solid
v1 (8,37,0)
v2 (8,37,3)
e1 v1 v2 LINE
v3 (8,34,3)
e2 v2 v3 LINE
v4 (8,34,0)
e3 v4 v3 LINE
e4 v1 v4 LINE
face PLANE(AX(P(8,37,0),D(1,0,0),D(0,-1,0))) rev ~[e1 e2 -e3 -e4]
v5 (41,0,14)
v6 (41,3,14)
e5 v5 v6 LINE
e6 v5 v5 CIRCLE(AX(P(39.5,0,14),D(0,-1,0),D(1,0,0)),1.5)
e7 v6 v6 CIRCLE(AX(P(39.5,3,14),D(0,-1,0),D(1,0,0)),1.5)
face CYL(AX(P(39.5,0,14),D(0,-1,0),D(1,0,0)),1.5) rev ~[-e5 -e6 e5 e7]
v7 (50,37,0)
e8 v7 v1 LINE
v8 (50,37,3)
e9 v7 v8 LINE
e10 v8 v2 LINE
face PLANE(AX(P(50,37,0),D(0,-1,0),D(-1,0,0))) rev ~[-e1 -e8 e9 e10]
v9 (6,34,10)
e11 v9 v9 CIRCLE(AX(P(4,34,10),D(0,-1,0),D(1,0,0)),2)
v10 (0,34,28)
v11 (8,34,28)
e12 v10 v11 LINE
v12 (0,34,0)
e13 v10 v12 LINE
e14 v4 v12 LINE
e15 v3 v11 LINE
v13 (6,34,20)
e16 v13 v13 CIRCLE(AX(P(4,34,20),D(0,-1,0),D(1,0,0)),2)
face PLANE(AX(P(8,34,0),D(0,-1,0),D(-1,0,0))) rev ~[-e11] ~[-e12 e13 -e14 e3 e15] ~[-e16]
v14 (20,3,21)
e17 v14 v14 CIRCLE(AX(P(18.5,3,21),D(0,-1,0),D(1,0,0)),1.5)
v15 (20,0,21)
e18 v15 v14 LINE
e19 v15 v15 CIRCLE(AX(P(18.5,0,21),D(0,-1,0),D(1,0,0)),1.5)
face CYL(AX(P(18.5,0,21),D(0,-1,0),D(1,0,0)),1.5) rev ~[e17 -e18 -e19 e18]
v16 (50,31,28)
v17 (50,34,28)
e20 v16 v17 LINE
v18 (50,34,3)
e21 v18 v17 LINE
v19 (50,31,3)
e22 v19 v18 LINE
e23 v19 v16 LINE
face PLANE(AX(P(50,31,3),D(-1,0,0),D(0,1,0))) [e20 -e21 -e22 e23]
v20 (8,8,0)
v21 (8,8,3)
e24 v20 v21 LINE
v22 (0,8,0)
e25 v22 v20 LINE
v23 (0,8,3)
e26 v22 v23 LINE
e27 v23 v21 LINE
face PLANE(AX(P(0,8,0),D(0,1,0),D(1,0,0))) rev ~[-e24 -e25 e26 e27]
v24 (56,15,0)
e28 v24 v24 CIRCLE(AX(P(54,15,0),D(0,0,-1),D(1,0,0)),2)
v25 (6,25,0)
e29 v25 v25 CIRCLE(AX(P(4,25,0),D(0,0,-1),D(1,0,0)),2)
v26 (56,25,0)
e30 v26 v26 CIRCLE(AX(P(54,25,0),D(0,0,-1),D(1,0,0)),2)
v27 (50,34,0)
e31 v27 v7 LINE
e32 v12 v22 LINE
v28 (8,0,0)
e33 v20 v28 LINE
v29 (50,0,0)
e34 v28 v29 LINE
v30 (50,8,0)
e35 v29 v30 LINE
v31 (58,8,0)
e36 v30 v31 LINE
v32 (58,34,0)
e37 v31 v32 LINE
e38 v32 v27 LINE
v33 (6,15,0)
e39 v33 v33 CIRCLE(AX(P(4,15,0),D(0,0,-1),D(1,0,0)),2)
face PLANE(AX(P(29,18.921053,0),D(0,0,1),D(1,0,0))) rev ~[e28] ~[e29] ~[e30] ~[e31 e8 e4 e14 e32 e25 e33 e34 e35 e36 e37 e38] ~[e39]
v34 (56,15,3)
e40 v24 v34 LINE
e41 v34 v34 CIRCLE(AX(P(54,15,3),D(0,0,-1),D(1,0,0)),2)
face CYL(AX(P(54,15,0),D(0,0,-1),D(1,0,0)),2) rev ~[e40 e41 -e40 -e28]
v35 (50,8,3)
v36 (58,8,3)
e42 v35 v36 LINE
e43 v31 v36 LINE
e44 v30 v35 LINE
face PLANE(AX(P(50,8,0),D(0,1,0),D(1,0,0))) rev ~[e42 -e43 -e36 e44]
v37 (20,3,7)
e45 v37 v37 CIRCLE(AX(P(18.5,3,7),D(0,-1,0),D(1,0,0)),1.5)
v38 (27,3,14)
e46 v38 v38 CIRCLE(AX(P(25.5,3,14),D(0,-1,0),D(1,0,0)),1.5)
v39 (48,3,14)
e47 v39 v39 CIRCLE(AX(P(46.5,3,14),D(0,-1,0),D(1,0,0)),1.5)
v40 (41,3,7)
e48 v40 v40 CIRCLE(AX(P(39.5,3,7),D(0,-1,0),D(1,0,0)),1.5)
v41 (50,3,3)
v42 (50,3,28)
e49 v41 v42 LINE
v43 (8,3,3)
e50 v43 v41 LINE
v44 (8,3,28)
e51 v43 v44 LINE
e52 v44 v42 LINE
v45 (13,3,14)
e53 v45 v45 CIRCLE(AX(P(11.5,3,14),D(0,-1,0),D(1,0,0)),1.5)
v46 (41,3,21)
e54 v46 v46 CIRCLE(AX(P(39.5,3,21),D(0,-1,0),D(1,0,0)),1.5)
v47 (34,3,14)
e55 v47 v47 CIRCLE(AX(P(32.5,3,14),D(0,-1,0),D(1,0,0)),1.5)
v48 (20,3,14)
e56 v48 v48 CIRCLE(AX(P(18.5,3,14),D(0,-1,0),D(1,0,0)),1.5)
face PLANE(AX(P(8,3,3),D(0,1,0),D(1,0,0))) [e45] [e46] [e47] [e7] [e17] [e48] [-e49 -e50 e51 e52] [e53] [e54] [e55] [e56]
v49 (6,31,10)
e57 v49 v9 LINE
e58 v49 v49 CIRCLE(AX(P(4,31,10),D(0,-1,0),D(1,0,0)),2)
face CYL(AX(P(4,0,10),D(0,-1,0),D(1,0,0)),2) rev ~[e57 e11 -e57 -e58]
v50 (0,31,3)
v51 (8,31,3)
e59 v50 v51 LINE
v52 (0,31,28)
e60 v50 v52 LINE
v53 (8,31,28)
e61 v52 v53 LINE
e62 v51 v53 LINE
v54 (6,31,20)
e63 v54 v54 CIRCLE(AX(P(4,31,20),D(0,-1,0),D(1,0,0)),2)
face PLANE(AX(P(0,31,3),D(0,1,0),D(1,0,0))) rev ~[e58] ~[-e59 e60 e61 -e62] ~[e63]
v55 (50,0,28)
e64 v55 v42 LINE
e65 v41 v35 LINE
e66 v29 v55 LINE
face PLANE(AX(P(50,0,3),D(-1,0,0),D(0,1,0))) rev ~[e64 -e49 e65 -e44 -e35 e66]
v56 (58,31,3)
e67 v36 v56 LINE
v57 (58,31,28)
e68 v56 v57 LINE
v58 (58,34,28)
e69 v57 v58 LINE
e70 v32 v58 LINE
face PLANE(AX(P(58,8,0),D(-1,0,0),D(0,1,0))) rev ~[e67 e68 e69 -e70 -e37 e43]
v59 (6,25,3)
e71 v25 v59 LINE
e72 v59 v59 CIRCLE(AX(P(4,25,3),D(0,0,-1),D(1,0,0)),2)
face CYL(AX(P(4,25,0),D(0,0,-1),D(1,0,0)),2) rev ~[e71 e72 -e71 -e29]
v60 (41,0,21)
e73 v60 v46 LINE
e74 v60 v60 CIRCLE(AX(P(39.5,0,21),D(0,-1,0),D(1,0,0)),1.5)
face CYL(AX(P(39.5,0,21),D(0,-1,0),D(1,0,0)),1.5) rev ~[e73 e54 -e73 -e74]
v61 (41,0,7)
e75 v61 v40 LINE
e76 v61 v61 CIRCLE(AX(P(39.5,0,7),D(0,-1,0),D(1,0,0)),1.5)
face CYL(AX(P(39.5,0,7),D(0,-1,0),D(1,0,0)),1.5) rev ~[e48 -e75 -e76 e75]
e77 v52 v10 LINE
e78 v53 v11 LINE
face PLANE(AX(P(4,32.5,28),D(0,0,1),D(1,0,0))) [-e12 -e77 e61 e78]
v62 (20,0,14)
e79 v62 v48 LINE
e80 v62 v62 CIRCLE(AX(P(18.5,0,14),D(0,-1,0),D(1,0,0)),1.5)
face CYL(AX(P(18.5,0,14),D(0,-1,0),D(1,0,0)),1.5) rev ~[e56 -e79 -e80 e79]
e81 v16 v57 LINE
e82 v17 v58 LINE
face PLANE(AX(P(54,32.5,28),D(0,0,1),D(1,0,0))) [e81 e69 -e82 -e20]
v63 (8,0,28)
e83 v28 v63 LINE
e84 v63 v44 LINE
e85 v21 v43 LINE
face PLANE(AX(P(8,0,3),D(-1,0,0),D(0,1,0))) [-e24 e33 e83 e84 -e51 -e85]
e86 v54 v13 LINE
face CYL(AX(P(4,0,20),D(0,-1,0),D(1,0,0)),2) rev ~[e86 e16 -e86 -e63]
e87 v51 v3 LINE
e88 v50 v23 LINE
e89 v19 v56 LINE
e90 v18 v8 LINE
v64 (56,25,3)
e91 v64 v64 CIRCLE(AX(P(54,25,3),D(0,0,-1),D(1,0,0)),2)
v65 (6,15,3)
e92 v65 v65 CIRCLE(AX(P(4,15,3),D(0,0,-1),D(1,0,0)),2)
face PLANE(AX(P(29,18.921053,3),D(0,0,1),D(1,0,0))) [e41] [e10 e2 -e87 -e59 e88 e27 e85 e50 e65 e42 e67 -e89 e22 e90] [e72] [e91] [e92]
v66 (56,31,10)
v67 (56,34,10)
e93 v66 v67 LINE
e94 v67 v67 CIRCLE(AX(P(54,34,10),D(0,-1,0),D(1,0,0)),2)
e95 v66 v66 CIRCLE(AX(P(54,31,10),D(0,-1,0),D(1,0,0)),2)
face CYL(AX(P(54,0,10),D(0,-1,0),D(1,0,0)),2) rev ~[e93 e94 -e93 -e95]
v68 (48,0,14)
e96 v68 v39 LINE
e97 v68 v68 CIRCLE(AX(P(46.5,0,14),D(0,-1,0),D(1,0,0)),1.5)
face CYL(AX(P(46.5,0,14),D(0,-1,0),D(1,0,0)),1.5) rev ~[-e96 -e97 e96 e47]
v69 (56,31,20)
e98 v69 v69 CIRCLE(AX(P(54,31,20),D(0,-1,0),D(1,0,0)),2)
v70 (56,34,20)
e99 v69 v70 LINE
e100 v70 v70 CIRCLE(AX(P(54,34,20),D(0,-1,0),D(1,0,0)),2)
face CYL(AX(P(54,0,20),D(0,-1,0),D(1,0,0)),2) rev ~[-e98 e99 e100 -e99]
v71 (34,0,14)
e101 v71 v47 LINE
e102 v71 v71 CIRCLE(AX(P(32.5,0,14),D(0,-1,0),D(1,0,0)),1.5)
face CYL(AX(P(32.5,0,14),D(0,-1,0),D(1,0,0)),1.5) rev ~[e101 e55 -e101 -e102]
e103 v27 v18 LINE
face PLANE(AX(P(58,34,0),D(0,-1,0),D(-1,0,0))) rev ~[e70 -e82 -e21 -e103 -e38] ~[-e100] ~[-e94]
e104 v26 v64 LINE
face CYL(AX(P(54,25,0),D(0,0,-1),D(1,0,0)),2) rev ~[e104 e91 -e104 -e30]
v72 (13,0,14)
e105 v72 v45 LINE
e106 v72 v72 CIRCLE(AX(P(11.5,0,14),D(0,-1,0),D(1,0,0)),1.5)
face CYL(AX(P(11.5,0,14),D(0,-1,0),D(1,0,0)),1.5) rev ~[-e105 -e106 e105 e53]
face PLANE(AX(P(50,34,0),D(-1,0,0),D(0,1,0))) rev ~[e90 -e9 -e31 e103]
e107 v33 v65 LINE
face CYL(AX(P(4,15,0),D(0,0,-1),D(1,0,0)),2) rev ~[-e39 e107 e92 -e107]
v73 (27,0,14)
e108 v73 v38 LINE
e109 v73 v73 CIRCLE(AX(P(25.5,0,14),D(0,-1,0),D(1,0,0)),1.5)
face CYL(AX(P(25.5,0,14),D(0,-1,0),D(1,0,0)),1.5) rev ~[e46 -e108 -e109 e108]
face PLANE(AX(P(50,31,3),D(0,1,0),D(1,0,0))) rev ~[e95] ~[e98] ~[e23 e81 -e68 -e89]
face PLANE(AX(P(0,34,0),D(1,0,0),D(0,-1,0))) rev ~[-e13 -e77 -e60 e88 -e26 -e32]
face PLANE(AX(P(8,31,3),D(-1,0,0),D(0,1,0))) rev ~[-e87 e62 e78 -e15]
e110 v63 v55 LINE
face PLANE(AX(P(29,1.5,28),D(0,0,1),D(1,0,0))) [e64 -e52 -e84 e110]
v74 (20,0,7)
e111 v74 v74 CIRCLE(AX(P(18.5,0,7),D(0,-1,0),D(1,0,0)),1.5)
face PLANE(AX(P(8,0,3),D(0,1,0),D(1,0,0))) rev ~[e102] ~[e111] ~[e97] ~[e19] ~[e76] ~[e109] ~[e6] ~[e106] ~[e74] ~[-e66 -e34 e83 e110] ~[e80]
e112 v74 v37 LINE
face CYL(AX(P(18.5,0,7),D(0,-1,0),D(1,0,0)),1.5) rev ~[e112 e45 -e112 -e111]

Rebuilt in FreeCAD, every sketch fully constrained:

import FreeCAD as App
import Part
import Sketcher

V = App.Vector


def add_polygon(sketch, points):
    """Adds a closed chain of lines whose ends are joined by coincident constraints."""
    first, n = sketch.GeometryCount, len(points)
    for a, b in zip(points, points[1:] + points[:1]):
        sketch.addGeometry(Part.LineSegment(App.Vector(*a, 0), App.Vector(*b, 0)), False)
    for i in range(n):
        sketch.addConstraint(Sketcher.Constraint("Coincident", first + i, 2, first + (i + 1) % n, 1))

doc = App.newDocument("Part")
body = doc.addObject("PartDesign::Body", "Body")

sketch1 = doc.addObject("Sketcher::SketchObject", "Sketch")
body.addObject(sketch1)
sketch1.AttachmentSupport = (doc.XY_Plane, [""])
sketch1.MapMode = "FlatFace"
add_polygon(sketch1, [(8, 8), (8, 0), (50, 0), (50, 8), (58, 8), (58, 34), (50, 34), (50, 37), (8, 37), (8, 34), (0, 34), (0, 8)])
sketch1.addConstraint([
    Sketcher.Constraint("Vertical", 0),
    Sketcher.Constraint("Horizontal", 1),
    Sketcher.Constraint("Vertical", 2),
    Sketcher.Constraint("Horizontal", 3),
    Sketcher.Constraint("Vertical", 4),
    Sketcher.Constraint("Horizontal", 5),
    Sketcher.Constraint("Vertical", 6),
    Sketcher.Constraint("Horizontal", 7),
    Sketcher.Constraint("Vertical", 8),
    Sketcher.Constraint("Horizontal", 9),
    Sketcher.Constraint("Vertical", 10),
    Sketcher.Constraint("Horizontal", 11),
    Sketcher.Constraint("PointOnObject", 0, 2, -1),
    Sketcher.Constraint("PointOnObject", 9, 2, -2),
    Sketcher.Constraint("Horizontal", 5, 2, 8, 2),
    Sketcher.Constraint("Horizontal", 3, 2, 10, 2),
    Sketcher.Constraint("Vertical", 2, 2, 5, 2),
    Sketcher.Constraint("Vertical", 0, 2, 7, 2),
    Sketcher.Constraint("Equal", 5, 9),
    Sketcher.Constraint("Equal", 11, 0),
    Sketcher.Constraint("DistanceX", 1, 1, 1, 2, 42.0),
    Sketcher.Constraint("DistanceX", 3, 1, 3, 2, 8.0),
    Sketcher.Constraint("DistanceY", 4, 1, 4, 2, 26.0),
    Sketcher.Constraint("DistanceY", 6, 1, 6, 2, 3.0),
])
pad1 = doc.addObject("PartDesign::Pad", "Pad")
body.addObject(pad1)
pad1.Profile = sketch1
pad1.Length = 3

sketch2 = doc.addObject("Sketcher::SketchObject", "Sketch001")
body.addObject(sketch2)
sketch2.AttachmentSupport = (doc.XY_Plane, [""])
sketch2.MapMode = "FlatFace"
sketch2.AttachmentOffset = App.Placement(V(0, 0, 3), App.Rotation())
add_polygon(sketch2, [(8, 3), (8, 0), (50, 0), (50, 3)])
add_polygon(sketch2, [(0, 34), (0, 31), (8, 31), (8, 34)])
add_polygon(sketch2, [(50, 34), (50, 31), (58, 31), (58, 34)])
sketch2.addConstraint([
    Sketcher.Constraint("Vertical", 0),
    Sketcher.Constraint("Horizontal", 1),
    Sketcher.Constraint("Vertical", 2),
    Sketcher.Constraint("Horizontal", 3),
    Sketcher.Constraint("Vertical", 4),
    Sketcher.Constraint("Horizontal", 5),
    Sketcher.Constraint("Vertical", 6),
    Sketcher.Constraint("Horizontal", 7),
    Sketcher.Constraint("Vertical", 8),
    Sketcher.Constraint("Horizontal", 9),
    Sketcher.Constraint("Vertical", 10),
    Sketcher.Constraint("Horizontal", 11),
    Sketcher.Constraint("PointOnObject", 0, 2, -1),
    Sketcher.Constraint("PointOnObject", 4, 2, -2),
    Sketcher.Constraint("Horizontal", 5, 2, 8, 2),
    Sketcher.Constraint("Horizontal", 7, 2, 10, 2),
    Sketcher.Constraint("Vertical", 3, 2, 5, 2),
    Sketcher.Constraint("Vertical", 2, 2, 8, 2),
    Sketcher.Constraint("Equal", 7, 9),
    Sketcher.Constraint("Equal", 2, 4),
    Sketcher.Constraint("DistanceX", 1, 1, 1, 2, 42.0),
    Sketcher.Constraint("DistanceX", 5, 1, 5, 2, 8.0),
    Sketcher.Constraint("DistanceY", 0, 2, 0, 1, 3.0),
    Sketcher.Constraint("DistanceY", -1, 1, 4, 2, 31.0),
])
pad2 = doc.addObject("PartDesign::Pad", "Pad001")
body.addObject(pad2)
pad2.Profile = sketch2
pad2.Length = 25

sketch3 = doc.addObject("Sketcher::SketchObject", "Sketch002")
body.addObject(sketch3)
sketch3.AttachmentSupport = (doc.XZ_Plane, [""])
sketch3.MapMode = "FlatFace"
sketch3.addGeometry([
    Part.Circle(V(54, 20, 0), V(0, 0, 1), 2),
    Part.Circle(V(54, 10, 0), V(0, 0, 1), 2),
    Part.Circle(V(4, 20, 0), V(0, 0, 1), 2),
    Part.Circle(V(4, 10, 0), V(0, 0, 1), 2),
], False)
sketch3.addConstraint([
    Sketcher.Constraint("Equal", 0, 1),
    Sketcher.Constraint("Equal", 1, 2),
    Sketcher.Constraint("Equal", 2, 3),
    Sketcher.Constraint("Horizontal", 0, 3, 2, 3),
    Sketcher.Constraint("Horizontal", 1, 3, 3, 3),
    Sketcher.Constraint("Vertical", 0, 3, 1, 3),
    Sketcher.Constraint("Vertical", 2, 3, 3, 3),
    Sketcher.Constraint("Diameter", 0, 4.0),
    Sketcher.Constraint("DistanceX", -1, 1, 0, 3, 54.0),
    Sketcher.Constraint("DistanceY", -1, 1, 0, 3, 20.0),
    Sketcher.Constraint("DistanceY", -1, 1, 1, 3, 10.0),
    Sketcher.Constraint("DistanceX", -1, 1, 2, 3, 4.0),
])
pocket1 = doc.addObject("PartDesign::Pocket", "Pocket")
body.addObject(pocket1)
pocket1.Profile = sketch3
pocket1.Type = "ThroughAll"

sketch4 = doc.addObject("Sketcher::SketchObject", "Sketch003")
body.addObject(sketch4)
sketch4.AttachmentSupport = (doc.XZ_Plane, [""])
sketch4.MapMode = "FlatFace"
sketch4.addGeometry([
    Part.Circle(V(39.5, 14, 0), V(0, 0, 1), 1.5),
    Part.Circle(V(39.5, 21, 0), V(0, 0, 1), 1.5),
    Part.Circle(V(32.5, 14, 0), V(0, 0, 1), 1.5),
    Part.Circle(V(25.5, 14, 0), V(0, 0, 1), 1.5),
    Part.Circle(V(18.5, 14, 0), V(0, 0, 1), 1.5),
    Part.Circle(V(11.5, 14, 0), V(0, 0, 1), 1.5),
    Part.Circle(V(46.5, 14, 0), V(0, 0, 1), 1.5),
    Part.Circle(V(18.5, 21, 0), V(0, 0, 1), 1.5),
    Part.Circle(V(39.5, 7, 0), V(0, 0, 1), 1.5),
    Part.Circle(V(18.5, 7, 0), V(0, 0, 1), 1.5),
], False)
sketch4.addConstraint([
    Sketcher.Constraint("Equal", 0, 1),
    Sketcher.Constraint("Equal", 1, 2),
    Sketcher.Constraint("Equal", 2, 3),
    Sketcher.Constraint("Equal", 3, 4),
    Sketcher.Constraint("Equal", 4, 5),
    Sketcher.Constraint("Equal", 5, 6),
    Sketcher.Constraint("Equal", 6, 7),
    Sketcher.Constraint("Equal", 7, 8),
    Sketcher.Constraint("Equal", 8, 9),
    Sketcher.Constraint("Horizontal", 0, 3, 2, 3),
    Sketcher.Constraint("Horizontal", 2, 3, 3, 3),
    Sketcher.Constraint("Horizontal", 3, 3, 4, 3),
    Sketcher.Constraint("Horizontal", 4, 3, 5, 3),
    Sketcher.Constraint("Horizontal", 5, 3, 6, 3),
    Sketcher.Constraint("Horizontal", 1, 3, 7, 3),
    Sketcher.Constraint("Horizontal", 8, 3, 9, 3),
    Sketcher.Constraint("Vertical", 0, 3, 1, 3),
    Sketcher.Constraint("Vertical", 4, 3, 7, 3),
    Sketcher.Constraint("Vertical", 1, 3, 8, 3),
    Sketcher.Constraint("Vertical", 7, 3, 9, 3),
    Sketcher.Constraint("Diameter", 0, 3.0),
    Sketcher.Constraint("DistanceY", -1, 1, 0, 3, 14.0),
    Sketcher.Constraint("DistanceY", -1, 1, 1, 3, 21.0),
    Sketcher.Constraint("DistanceY", -1, 1, 8, 3, 7.0),
    Sketcher.Constraint("DistanceX", 2, 3, 0, 3, 7.0),
    Sketcher.Constraint("DistanceX", 3, 3, 2, 3, 7.0),
    Sketcher.Constraint("DistanceX", 4, 3, 3, 3, 7.0),
    Sketcher.Constraint("DistanceX", 5, 3, 4, 3, 7.0),
    Sketcher.Constraint("DistanceX", 0, 3, 6, 3, 7.0),
    Sketcher.Constraint("DistanceX", -1, 1, 0, 3, 39.5),
])
pocket2 = doc.addObject("PartDesign::Pocket", "Pocket001")
body.addObject(pocket2)
pocket2.Profile = sketch4
pocket2.Type = "ThroughAll"

sketch5 = doc.addObject("Sketcher::SketchObject", "Sketch004")
body.addObject(sketch5)
sketch5.AttachmentSupport = (doc.XY_Plane, [""])
sketch5.MapMode = "FlatFace"
sketch5.addGeometry([
    Part.Circle(V(4, 15, 0), V(0, 0, 1), 2),
    Part.Circle(V(4, 25, 0), V(0, 0, 1), 2),
    Part.Circle(V(54, 25, 0), V(0, 0, 1), 2),
    Part.Circle(V(54, 15, 0), V(0, 0, 1), 2),
], False)
sketch5.addConstraint([
    Sketcher.Constraint("Equal", 0, 1),
    Sketcher.Constraint("Equal", 1, 2),
    Sketcher.Constraint("Equal", 2, 3),
    Sketcher.Constraint("Horizontal", 1, 3, 2, 3),
    Sketcher.Constraint("Horizontal", 0, 3, 3, 3),
    Sketcher.Constraint("Vertical", 0, 3, 1, 3),
    Sketcher.Constraint("Vertical", 2, 3, 3, 3),
    Sketcher.Constraint("Diameter", 0, 4.0),
    Sketcher.Constraint("DistanceX", -1, 1, 0, 3, 4.0),
    Sketcher.Constraint("DistanceY", -1, 1, 0, 3, 15.0),
    Sketcher.Constraint("DistanceY", -1, 1, 1, 3, 25.0),
    Sketcher.Constraint("DistanceX", -1, 1, 2, 3, 54.0),
])
pocket3 = doc.addObject("PartDesign::Pocket", "Pocket002")
body.addObject(pocket3)
pocket3.Profile = sketch5
pocket3.Type = "ThroughAll"
pocket3.Reversed = True

doc.recompute()
